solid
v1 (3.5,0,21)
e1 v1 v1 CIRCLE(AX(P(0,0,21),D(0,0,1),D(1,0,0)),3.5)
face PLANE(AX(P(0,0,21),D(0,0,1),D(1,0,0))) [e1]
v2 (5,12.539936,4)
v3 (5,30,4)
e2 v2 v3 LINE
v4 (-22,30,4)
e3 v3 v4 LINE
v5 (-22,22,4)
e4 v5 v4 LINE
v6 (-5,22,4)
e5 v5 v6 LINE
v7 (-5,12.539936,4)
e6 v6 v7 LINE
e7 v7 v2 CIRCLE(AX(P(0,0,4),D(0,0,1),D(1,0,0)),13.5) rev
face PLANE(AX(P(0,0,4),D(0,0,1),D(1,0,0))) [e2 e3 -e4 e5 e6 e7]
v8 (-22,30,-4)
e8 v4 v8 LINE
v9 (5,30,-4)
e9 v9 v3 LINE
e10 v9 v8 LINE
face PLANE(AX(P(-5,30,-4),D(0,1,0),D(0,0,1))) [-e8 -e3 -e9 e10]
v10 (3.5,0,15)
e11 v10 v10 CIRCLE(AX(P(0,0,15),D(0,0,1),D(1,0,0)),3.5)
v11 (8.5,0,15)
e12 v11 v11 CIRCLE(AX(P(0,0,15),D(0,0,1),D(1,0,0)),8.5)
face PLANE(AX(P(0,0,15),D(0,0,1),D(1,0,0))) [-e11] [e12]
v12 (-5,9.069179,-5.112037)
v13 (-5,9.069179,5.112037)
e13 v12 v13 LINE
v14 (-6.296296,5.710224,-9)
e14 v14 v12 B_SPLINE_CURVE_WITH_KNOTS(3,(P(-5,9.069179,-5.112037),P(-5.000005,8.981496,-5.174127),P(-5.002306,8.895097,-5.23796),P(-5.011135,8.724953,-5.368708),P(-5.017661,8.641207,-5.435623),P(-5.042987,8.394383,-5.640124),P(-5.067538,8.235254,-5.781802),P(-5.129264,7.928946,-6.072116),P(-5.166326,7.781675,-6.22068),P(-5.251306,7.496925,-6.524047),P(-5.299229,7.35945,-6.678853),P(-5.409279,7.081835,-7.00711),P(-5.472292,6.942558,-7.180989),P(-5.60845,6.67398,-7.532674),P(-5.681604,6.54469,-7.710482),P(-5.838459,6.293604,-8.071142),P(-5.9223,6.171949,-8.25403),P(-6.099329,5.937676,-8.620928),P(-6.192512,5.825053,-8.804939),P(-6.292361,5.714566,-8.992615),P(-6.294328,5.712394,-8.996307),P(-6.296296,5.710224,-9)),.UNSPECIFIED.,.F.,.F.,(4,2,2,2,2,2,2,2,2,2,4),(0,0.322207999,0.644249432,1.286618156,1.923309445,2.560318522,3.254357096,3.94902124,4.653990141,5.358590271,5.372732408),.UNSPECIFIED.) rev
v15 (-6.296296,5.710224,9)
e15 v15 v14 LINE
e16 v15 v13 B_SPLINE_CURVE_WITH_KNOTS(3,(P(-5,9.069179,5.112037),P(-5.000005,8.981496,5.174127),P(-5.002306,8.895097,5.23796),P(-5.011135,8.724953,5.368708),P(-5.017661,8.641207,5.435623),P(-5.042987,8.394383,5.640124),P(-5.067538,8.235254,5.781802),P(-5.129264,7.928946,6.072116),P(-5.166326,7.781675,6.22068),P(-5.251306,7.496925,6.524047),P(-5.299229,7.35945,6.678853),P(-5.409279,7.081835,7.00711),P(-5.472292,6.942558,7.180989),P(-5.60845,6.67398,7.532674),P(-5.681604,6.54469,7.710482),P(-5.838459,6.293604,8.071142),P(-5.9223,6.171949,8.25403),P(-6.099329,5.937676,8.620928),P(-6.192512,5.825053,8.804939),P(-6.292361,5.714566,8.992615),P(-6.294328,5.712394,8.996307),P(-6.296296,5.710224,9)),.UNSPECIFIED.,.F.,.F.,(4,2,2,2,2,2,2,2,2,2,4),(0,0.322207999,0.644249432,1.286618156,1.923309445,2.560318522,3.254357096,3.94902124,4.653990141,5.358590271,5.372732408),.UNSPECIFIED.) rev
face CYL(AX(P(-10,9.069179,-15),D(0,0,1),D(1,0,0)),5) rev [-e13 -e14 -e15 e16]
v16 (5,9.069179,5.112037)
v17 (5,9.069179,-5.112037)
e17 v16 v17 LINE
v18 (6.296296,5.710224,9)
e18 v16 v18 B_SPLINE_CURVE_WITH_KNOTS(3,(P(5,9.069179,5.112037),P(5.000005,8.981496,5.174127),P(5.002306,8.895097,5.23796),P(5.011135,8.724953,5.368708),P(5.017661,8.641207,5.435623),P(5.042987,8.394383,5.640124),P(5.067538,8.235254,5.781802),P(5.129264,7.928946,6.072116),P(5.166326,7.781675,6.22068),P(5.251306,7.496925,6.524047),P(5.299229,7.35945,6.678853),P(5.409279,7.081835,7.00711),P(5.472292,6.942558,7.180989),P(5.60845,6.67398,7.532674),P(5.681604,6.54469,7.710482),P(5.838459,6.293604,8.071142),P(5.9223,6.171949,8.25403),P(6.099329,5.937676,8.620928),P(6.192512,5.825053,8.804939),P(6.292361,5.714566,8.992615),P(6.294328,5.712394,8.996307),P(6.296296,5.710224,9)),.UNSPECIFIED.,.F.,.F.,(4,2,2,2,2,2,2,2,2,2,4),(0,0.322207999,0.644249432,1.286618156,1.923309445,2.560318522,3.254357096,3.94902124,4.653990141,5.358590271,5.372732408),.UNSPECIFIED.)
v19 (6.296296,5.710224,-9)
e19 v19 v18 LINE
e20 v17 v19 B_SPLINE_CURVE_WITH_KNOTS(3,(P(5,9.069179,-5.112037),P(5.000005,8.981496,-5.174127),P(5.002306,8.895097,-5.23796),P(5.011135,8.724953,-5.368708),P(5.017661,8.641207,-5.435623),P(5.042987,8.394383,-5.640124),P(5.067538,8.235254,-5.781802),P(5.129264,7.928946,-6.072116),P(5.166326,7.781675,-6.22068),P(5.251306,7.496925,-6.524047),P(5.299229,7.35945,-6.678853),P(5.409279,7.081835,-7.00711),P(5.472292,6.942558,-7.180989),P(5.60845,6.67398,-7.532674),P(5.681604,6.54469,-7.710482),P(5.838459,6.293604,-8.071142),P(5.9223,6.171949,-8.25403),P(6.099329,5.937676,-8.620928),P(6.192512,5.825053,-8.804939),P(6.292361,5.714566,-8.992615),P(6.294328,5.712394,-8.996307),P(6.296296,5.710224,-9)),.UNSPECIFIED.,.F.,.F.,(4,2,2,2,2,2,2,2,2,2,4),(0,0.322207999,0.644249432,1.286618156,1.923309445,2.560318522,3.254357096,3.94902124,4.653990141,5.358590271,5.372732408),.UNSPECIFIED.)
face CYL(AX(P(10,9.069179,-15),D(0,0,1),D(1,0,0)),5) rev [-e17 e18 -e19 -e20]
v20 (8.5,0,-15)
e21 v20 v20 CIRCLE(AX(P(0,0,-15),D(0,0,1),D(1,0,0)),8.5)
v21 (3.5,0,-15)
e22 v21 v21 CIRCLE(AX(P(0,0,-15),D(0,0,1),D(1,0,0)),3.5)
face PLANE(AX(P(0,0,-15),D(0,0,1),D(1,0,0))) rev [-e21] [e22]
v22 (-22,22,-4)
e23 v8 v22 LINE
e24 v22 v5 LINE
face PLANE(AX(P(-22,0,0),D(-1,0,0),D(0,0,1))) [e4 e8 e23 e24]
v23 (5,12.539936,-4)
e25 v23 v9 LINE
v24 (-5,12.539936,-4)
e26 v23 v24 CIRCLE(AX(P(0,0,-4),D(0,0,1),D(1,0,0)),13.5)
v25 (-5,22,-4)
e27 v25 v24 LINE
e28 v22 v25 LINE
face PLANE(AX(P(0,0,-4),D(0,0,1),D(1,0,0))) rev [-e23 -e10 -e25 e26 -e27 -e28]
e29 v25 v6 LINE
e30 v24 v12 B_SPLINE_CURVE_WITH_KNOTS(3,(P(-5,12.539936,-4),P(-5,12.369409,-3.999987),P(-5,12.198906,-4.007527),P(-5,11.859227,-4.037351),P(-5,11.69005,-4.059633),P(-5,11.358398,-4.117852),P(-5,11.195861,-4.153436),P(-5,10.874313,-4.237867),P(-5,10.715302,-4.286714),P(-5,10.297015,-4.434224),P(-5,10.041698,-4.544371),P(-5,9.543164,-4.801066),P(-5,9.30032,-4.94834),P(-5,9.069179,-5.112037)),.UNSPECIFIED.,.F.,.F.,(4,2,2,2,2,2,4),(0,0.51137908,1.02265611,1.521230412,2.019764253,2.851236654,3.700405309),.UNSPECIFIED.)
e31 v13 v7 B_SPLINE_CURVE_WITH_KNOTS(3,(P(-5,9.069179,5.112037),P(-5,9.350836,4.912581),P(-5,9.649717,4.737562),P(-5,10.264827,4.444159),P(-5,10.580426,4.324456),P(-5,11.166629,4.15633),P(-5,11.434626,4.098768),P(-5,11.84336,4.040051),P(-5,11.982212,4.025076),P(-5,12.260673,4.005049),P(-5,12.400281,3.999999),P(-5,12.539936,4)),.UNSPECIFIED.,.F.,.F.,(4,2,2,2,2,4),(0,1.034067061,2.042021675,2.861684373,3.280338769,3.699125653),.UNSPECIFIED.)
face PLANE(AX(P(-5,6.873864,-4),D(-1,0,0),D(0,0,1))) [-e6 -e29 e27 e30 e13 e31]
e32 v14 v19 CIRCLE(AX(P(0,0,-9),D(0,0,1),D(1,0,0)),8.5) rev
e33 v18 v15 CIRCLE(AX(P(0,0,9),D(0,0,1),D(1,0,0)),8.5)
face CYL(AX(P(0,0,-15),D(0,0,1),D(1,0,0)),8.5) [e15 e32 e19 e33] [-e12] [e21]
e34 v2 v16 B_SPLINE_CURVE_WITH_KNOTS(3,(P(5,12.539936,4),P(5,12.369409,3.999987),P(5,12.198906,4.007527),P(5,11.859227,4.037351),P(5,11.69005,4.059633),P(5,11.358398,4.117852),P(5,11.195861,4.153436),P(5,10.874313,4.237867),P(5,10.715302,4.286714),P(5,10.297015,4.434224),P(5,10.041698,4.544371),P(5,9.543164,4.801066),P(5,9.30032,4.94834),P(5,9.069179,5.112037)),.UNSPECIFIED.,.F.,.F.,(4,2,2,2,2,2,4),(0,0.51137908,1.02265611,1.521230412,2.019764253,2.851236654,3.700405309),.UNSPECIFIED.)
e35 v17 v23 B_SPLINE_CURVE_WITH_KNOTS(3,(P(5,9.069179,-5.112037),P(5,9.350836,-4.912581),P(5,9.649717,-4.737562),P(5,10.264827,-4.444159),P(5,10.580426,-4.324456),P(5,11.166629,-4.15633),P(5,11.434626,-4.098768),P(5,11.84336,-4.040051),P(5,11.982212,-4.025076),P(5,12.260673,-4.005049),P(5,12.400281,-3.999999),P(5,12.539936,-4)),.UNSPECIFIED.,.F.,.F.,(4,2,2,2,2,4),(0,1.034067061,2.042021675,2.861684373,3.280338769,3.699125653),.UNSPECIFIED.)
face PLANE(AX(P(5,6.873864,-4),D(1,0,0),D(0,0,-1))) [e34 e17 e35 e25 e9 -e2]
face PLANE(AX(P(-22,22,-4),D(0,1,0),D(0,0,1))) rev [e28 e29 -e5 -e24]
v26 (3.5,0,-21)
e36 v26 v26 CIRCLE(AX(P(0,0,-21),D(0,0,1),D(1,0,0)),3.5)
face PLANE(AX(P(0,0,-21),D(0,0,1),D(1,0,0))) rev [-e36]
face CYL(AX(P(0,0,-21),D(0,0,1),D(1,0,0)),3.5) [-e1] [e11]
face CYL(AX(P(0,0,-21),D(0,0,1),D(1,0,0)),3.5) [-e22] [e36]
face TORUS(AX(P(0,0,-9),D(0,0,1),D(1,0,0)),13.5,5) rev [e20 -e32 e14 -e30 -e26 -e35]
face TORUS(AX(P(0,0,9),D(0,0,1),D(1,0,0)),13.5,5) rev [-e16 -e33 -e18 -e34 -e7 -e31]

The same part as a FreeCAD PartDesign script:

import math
import FreeCAD as App
import Part
import Sketcher
from FreeCAD import Vector
Q = App.Units.Quantity


def edges_at(feature, points):
    """Names of the edges that pass closest to the given points."""
    edges = feature.Shape.Edges
    near = lambda p: min(range(len(edges)), key=lambda i: edges[i].distToShape(Part.Vertex(*p))[0])
    return sorted({f"Edge{near(p) + 1}" for p in points})


def add_polygon(sketch, points):
    """Adds a closed chain of lines whose ends are joined by coincident constraints."""
    first, n = sketch.GeometryCount, len(points)
    for a, b in zip(points, points[1:] + points[:1]):
        sketch.addGeometry(Part.LineSegment(App.Vector(*a, 0), App.Vector(*b, 0)), False)
    for i in range(n):
        sketch.addConstraint(Sketcher.Constraint("Coincident", first + i, 2, first + (i + 1) % n, 1))

doc = App.newDocument("Part")
params = doc.addObject("Spreadsheet::Sheet", "Params")
for row, (alias, value) in enumerate([
    ("sketch1_diameter", "17 mm"),
    ("pad1_length", "15 mm"),
    ("pad1_length2", "15 mm"),
    ("sketch2_radius", "8.5 mm"),
    ("sketch2_width", "10 mm"),
    ("pad2_length", "4 mm"),
    ("pad2_length2", "4 mm"),
    ("fillet_radius", "5 mm"),
    ("sketch3_width", "8 mm"),
    ("pad3_length", "17 mm"),
    ("sketch4_diameter", "7 mm"),
    ("pad4_length", "6 mm"),
    ("pad4_length2", "36 mm"),
], start=1):
    params.set(f"A{row}", alias)
    params.set(f"B{row}", "=" + value)
    params.setAlias(f"B{row}", alias)

body = doc.addObject("PartDesign::Body", "Body")

# Sketch on XY plane
sketch1 = body.newObject("Sketcher::SketchObject", "Sketch")
sketch1.AttachmentSupport = (doc.getObject("XY_Plane"), [""])
sketch1.MapMode = "FlatFace"
sketch1.addGeometry(Part.Circle(Vector(0, 0, 0), Vector(0, 0, 1), 8), False)
sketch1.addConstraint(Sketcher.Constraint("Coincident", 0, 3, -1, 1))
sketch1.addConstraint(Sketcher.Constraint("Diameter", 0, Q("17 mm")))
sketch1.setExpression("Constraints[1]", "Params.sketch1_diameter")
pad1 = body.newObject("PartDesign::Pad", "Pad")
pad1.Profile = sketch1
pad1.Type = "TwoLengths"
pad1.setExpression("Length", "Params.pad1_length")
pad1.setExpression("Length2", "Params.pad1_length2")

# Sketch on XY plane
sketch2 = body.newObject("Sketcher::SketchObject", "Sketch001")
sketch2.AttachmentSupport = (doc.getObject("XY_Plane"), [""])
sketch2.MapMode = "FlatFace"
sketch2.addGeometry(Part.LineSegment(Vector(-5, 30, 0), Vector(-5, 7, 0)), False)
sketch2.addGeometry(Part.ArcOfCircle(Part.Circle(Vector(0, 0, 0), Vector(0, 0, 1), 8), math.radians(54), math.radians(126)), False)
sketch2.addGeometry(Part.LineSegment(Vector(5, 7, 0), Vector(5, 30, 0)), False)
sketch2.addGeometry(Part.LineSegment(Vector(5, 30, 0), Vector(-5, 30, 0)), False)
sketch2.addConstraint(Sketcher.Constraint("Coincident", 0, 2, 1, 2))
sketch2.addConstraint(Sketcher.Constraint("Coincident", 1, 1, 2, 1))
sketch2.addConstraint(Sketcher.Constraint("Coincident", 2, 2, 3, 1))
sketch2.addConstraint(Sketcher.Constraint("Coincident", 3, 2, 0, 1))
sketch2.addConstraint(Sketcher.Constraint("Vertical", 0))
sketch2.addConstraint(Sketcher.Constraint("Vertical", 2))
sketch2.addConstraint(Sketcher.Constraint("Horizontal", 3))
sketch2.addConstraint(Sketcher.Constraint("Coincident", 1, 3, -1, 1))
sketch2.addConstraint(Sketcher.Constraint("Horizontal", 0, 2, 1, 1))
sketch2.addConstraint(Sketcher.Constraint("Radius", 1, Q("8.5 mm")))
sketch2.addConstraint(Sketcher.Constraint("DistanceX", 3, 2, 3, 1, Q("10 mm")))
sketch2.addConstraint(Sketcher.Constraint("DistanceY", -1, 1, 2, 2, Q("30 mm")))
sketch2.setExpression("Constraints[9]", "Params.sketch2_radius")
sketch2.setExpression("Constraints[10]", "Params.sketch2_width")
pad2 = body.newObject("PartDesign::Pad", "Pad001")
pad2.Profile = sketch2
pad2.Type = "TwoLengths"
pad2.setExpression("Length", "Params.pad2_length")
pad2.setExpression("Length2", "Params.pad2_length2")
doc.recompute()

fillet = body.newObject("PartDesign::Fillet", "Fillet")
fillet.Base = (pad2, edges_at(pad2, [
    (5, 6.874, 0),
    (0, 8.5, -4),
    (-5, 6.874, 0),
    (0, 8.5, 4),
]))
fillet.setExpression("Radius", "Params.fillet_radius")

# Sketch on YZ plane
sketch3 = body.newObject("Sketcher::SketchObject", "Sketch002")
sketch3.AttachmentSupport = (doc.getObject("YZ_Plane"), [""])
sketch3.MapMode = "FlatFace"
sketch3.AttachmentOffset = App.Placement(Vector(0, 0, -5), App.Rotation())
add_polygon(sketch3, [(30, -4), (22, -4), (22, 4), (30, 4)])  # lines 0-3
sketch3.addConstraint(Sketcher.Constraint("Horizontal", 0))
sketch3.addConstraint(Sketcher.Constraint("Vertical", 1))
sketch3.addConstraint(Sketcher.Constraint("Horizontal", 2))
sketch3.addConstraint(Sketcher.Constraint("Vertical", 3))
sketch3.addConstraint(Sketcher.Constraint("Equal", 2, 1))
sketch3.addConstraint(Sketcher.Constraint("DistanceX", 0, 2, 0, 1, Q("8 mm")))
sketch3.addConstraint(Sketcher.Constraint("DistanceX", -1, 1, 0, 2, Q("22 mm")))
sketch3.addConstraint(Sketcher.Constraint("DistanceY", 0, 2, -1, 1, Q("4 mm")))
sketch3.setExpression("Constraints[9]", "Params.sketch3_width")
pad3 = body.newObject("PartDesign::Pad", "Pad002")
pad3.Profile = sketch3
pad3.setExpression("Length", "Params.pad3_length")
pad3.Reversed = True

# Sketch on XY plane
sketch4 = body.newObject("Sketcher::SketchObject", "Sketch003")
sketch4.AttachmentSupport = (doc.getObject("XY_Plane"), [""])
sketch4.MapMode = "FlatFace"
sketch4.AttachmentOffset = App.Placement(Vector(0, 0, 15), App.Rotation())
sketch4.addGeometry(Part.Circle(Vector(0, 0, 0), Vector(0, 0, 1), 3.5), False)
sketch4.addConstraint(Sketcher.Constraint("Coincident", 0, 3, -1, 1))
sketch4.addConstraint(Sketcher.Constraint("Diameter", 0, Q("7 mm")))
sketch4.setExpression("Constraints[1]", "Params.sketch4_diameter")
pad4 = body.newObject("PartDesign::Pad", "Pad003")
pad4.Profile = sketch4
pad4.Type = "TwoLengths"
pad4.setExpression("Length", "Params.pad4_length")
pad4.setExpression("Length2", "Params.pad4_length2")

doc.recompute()
